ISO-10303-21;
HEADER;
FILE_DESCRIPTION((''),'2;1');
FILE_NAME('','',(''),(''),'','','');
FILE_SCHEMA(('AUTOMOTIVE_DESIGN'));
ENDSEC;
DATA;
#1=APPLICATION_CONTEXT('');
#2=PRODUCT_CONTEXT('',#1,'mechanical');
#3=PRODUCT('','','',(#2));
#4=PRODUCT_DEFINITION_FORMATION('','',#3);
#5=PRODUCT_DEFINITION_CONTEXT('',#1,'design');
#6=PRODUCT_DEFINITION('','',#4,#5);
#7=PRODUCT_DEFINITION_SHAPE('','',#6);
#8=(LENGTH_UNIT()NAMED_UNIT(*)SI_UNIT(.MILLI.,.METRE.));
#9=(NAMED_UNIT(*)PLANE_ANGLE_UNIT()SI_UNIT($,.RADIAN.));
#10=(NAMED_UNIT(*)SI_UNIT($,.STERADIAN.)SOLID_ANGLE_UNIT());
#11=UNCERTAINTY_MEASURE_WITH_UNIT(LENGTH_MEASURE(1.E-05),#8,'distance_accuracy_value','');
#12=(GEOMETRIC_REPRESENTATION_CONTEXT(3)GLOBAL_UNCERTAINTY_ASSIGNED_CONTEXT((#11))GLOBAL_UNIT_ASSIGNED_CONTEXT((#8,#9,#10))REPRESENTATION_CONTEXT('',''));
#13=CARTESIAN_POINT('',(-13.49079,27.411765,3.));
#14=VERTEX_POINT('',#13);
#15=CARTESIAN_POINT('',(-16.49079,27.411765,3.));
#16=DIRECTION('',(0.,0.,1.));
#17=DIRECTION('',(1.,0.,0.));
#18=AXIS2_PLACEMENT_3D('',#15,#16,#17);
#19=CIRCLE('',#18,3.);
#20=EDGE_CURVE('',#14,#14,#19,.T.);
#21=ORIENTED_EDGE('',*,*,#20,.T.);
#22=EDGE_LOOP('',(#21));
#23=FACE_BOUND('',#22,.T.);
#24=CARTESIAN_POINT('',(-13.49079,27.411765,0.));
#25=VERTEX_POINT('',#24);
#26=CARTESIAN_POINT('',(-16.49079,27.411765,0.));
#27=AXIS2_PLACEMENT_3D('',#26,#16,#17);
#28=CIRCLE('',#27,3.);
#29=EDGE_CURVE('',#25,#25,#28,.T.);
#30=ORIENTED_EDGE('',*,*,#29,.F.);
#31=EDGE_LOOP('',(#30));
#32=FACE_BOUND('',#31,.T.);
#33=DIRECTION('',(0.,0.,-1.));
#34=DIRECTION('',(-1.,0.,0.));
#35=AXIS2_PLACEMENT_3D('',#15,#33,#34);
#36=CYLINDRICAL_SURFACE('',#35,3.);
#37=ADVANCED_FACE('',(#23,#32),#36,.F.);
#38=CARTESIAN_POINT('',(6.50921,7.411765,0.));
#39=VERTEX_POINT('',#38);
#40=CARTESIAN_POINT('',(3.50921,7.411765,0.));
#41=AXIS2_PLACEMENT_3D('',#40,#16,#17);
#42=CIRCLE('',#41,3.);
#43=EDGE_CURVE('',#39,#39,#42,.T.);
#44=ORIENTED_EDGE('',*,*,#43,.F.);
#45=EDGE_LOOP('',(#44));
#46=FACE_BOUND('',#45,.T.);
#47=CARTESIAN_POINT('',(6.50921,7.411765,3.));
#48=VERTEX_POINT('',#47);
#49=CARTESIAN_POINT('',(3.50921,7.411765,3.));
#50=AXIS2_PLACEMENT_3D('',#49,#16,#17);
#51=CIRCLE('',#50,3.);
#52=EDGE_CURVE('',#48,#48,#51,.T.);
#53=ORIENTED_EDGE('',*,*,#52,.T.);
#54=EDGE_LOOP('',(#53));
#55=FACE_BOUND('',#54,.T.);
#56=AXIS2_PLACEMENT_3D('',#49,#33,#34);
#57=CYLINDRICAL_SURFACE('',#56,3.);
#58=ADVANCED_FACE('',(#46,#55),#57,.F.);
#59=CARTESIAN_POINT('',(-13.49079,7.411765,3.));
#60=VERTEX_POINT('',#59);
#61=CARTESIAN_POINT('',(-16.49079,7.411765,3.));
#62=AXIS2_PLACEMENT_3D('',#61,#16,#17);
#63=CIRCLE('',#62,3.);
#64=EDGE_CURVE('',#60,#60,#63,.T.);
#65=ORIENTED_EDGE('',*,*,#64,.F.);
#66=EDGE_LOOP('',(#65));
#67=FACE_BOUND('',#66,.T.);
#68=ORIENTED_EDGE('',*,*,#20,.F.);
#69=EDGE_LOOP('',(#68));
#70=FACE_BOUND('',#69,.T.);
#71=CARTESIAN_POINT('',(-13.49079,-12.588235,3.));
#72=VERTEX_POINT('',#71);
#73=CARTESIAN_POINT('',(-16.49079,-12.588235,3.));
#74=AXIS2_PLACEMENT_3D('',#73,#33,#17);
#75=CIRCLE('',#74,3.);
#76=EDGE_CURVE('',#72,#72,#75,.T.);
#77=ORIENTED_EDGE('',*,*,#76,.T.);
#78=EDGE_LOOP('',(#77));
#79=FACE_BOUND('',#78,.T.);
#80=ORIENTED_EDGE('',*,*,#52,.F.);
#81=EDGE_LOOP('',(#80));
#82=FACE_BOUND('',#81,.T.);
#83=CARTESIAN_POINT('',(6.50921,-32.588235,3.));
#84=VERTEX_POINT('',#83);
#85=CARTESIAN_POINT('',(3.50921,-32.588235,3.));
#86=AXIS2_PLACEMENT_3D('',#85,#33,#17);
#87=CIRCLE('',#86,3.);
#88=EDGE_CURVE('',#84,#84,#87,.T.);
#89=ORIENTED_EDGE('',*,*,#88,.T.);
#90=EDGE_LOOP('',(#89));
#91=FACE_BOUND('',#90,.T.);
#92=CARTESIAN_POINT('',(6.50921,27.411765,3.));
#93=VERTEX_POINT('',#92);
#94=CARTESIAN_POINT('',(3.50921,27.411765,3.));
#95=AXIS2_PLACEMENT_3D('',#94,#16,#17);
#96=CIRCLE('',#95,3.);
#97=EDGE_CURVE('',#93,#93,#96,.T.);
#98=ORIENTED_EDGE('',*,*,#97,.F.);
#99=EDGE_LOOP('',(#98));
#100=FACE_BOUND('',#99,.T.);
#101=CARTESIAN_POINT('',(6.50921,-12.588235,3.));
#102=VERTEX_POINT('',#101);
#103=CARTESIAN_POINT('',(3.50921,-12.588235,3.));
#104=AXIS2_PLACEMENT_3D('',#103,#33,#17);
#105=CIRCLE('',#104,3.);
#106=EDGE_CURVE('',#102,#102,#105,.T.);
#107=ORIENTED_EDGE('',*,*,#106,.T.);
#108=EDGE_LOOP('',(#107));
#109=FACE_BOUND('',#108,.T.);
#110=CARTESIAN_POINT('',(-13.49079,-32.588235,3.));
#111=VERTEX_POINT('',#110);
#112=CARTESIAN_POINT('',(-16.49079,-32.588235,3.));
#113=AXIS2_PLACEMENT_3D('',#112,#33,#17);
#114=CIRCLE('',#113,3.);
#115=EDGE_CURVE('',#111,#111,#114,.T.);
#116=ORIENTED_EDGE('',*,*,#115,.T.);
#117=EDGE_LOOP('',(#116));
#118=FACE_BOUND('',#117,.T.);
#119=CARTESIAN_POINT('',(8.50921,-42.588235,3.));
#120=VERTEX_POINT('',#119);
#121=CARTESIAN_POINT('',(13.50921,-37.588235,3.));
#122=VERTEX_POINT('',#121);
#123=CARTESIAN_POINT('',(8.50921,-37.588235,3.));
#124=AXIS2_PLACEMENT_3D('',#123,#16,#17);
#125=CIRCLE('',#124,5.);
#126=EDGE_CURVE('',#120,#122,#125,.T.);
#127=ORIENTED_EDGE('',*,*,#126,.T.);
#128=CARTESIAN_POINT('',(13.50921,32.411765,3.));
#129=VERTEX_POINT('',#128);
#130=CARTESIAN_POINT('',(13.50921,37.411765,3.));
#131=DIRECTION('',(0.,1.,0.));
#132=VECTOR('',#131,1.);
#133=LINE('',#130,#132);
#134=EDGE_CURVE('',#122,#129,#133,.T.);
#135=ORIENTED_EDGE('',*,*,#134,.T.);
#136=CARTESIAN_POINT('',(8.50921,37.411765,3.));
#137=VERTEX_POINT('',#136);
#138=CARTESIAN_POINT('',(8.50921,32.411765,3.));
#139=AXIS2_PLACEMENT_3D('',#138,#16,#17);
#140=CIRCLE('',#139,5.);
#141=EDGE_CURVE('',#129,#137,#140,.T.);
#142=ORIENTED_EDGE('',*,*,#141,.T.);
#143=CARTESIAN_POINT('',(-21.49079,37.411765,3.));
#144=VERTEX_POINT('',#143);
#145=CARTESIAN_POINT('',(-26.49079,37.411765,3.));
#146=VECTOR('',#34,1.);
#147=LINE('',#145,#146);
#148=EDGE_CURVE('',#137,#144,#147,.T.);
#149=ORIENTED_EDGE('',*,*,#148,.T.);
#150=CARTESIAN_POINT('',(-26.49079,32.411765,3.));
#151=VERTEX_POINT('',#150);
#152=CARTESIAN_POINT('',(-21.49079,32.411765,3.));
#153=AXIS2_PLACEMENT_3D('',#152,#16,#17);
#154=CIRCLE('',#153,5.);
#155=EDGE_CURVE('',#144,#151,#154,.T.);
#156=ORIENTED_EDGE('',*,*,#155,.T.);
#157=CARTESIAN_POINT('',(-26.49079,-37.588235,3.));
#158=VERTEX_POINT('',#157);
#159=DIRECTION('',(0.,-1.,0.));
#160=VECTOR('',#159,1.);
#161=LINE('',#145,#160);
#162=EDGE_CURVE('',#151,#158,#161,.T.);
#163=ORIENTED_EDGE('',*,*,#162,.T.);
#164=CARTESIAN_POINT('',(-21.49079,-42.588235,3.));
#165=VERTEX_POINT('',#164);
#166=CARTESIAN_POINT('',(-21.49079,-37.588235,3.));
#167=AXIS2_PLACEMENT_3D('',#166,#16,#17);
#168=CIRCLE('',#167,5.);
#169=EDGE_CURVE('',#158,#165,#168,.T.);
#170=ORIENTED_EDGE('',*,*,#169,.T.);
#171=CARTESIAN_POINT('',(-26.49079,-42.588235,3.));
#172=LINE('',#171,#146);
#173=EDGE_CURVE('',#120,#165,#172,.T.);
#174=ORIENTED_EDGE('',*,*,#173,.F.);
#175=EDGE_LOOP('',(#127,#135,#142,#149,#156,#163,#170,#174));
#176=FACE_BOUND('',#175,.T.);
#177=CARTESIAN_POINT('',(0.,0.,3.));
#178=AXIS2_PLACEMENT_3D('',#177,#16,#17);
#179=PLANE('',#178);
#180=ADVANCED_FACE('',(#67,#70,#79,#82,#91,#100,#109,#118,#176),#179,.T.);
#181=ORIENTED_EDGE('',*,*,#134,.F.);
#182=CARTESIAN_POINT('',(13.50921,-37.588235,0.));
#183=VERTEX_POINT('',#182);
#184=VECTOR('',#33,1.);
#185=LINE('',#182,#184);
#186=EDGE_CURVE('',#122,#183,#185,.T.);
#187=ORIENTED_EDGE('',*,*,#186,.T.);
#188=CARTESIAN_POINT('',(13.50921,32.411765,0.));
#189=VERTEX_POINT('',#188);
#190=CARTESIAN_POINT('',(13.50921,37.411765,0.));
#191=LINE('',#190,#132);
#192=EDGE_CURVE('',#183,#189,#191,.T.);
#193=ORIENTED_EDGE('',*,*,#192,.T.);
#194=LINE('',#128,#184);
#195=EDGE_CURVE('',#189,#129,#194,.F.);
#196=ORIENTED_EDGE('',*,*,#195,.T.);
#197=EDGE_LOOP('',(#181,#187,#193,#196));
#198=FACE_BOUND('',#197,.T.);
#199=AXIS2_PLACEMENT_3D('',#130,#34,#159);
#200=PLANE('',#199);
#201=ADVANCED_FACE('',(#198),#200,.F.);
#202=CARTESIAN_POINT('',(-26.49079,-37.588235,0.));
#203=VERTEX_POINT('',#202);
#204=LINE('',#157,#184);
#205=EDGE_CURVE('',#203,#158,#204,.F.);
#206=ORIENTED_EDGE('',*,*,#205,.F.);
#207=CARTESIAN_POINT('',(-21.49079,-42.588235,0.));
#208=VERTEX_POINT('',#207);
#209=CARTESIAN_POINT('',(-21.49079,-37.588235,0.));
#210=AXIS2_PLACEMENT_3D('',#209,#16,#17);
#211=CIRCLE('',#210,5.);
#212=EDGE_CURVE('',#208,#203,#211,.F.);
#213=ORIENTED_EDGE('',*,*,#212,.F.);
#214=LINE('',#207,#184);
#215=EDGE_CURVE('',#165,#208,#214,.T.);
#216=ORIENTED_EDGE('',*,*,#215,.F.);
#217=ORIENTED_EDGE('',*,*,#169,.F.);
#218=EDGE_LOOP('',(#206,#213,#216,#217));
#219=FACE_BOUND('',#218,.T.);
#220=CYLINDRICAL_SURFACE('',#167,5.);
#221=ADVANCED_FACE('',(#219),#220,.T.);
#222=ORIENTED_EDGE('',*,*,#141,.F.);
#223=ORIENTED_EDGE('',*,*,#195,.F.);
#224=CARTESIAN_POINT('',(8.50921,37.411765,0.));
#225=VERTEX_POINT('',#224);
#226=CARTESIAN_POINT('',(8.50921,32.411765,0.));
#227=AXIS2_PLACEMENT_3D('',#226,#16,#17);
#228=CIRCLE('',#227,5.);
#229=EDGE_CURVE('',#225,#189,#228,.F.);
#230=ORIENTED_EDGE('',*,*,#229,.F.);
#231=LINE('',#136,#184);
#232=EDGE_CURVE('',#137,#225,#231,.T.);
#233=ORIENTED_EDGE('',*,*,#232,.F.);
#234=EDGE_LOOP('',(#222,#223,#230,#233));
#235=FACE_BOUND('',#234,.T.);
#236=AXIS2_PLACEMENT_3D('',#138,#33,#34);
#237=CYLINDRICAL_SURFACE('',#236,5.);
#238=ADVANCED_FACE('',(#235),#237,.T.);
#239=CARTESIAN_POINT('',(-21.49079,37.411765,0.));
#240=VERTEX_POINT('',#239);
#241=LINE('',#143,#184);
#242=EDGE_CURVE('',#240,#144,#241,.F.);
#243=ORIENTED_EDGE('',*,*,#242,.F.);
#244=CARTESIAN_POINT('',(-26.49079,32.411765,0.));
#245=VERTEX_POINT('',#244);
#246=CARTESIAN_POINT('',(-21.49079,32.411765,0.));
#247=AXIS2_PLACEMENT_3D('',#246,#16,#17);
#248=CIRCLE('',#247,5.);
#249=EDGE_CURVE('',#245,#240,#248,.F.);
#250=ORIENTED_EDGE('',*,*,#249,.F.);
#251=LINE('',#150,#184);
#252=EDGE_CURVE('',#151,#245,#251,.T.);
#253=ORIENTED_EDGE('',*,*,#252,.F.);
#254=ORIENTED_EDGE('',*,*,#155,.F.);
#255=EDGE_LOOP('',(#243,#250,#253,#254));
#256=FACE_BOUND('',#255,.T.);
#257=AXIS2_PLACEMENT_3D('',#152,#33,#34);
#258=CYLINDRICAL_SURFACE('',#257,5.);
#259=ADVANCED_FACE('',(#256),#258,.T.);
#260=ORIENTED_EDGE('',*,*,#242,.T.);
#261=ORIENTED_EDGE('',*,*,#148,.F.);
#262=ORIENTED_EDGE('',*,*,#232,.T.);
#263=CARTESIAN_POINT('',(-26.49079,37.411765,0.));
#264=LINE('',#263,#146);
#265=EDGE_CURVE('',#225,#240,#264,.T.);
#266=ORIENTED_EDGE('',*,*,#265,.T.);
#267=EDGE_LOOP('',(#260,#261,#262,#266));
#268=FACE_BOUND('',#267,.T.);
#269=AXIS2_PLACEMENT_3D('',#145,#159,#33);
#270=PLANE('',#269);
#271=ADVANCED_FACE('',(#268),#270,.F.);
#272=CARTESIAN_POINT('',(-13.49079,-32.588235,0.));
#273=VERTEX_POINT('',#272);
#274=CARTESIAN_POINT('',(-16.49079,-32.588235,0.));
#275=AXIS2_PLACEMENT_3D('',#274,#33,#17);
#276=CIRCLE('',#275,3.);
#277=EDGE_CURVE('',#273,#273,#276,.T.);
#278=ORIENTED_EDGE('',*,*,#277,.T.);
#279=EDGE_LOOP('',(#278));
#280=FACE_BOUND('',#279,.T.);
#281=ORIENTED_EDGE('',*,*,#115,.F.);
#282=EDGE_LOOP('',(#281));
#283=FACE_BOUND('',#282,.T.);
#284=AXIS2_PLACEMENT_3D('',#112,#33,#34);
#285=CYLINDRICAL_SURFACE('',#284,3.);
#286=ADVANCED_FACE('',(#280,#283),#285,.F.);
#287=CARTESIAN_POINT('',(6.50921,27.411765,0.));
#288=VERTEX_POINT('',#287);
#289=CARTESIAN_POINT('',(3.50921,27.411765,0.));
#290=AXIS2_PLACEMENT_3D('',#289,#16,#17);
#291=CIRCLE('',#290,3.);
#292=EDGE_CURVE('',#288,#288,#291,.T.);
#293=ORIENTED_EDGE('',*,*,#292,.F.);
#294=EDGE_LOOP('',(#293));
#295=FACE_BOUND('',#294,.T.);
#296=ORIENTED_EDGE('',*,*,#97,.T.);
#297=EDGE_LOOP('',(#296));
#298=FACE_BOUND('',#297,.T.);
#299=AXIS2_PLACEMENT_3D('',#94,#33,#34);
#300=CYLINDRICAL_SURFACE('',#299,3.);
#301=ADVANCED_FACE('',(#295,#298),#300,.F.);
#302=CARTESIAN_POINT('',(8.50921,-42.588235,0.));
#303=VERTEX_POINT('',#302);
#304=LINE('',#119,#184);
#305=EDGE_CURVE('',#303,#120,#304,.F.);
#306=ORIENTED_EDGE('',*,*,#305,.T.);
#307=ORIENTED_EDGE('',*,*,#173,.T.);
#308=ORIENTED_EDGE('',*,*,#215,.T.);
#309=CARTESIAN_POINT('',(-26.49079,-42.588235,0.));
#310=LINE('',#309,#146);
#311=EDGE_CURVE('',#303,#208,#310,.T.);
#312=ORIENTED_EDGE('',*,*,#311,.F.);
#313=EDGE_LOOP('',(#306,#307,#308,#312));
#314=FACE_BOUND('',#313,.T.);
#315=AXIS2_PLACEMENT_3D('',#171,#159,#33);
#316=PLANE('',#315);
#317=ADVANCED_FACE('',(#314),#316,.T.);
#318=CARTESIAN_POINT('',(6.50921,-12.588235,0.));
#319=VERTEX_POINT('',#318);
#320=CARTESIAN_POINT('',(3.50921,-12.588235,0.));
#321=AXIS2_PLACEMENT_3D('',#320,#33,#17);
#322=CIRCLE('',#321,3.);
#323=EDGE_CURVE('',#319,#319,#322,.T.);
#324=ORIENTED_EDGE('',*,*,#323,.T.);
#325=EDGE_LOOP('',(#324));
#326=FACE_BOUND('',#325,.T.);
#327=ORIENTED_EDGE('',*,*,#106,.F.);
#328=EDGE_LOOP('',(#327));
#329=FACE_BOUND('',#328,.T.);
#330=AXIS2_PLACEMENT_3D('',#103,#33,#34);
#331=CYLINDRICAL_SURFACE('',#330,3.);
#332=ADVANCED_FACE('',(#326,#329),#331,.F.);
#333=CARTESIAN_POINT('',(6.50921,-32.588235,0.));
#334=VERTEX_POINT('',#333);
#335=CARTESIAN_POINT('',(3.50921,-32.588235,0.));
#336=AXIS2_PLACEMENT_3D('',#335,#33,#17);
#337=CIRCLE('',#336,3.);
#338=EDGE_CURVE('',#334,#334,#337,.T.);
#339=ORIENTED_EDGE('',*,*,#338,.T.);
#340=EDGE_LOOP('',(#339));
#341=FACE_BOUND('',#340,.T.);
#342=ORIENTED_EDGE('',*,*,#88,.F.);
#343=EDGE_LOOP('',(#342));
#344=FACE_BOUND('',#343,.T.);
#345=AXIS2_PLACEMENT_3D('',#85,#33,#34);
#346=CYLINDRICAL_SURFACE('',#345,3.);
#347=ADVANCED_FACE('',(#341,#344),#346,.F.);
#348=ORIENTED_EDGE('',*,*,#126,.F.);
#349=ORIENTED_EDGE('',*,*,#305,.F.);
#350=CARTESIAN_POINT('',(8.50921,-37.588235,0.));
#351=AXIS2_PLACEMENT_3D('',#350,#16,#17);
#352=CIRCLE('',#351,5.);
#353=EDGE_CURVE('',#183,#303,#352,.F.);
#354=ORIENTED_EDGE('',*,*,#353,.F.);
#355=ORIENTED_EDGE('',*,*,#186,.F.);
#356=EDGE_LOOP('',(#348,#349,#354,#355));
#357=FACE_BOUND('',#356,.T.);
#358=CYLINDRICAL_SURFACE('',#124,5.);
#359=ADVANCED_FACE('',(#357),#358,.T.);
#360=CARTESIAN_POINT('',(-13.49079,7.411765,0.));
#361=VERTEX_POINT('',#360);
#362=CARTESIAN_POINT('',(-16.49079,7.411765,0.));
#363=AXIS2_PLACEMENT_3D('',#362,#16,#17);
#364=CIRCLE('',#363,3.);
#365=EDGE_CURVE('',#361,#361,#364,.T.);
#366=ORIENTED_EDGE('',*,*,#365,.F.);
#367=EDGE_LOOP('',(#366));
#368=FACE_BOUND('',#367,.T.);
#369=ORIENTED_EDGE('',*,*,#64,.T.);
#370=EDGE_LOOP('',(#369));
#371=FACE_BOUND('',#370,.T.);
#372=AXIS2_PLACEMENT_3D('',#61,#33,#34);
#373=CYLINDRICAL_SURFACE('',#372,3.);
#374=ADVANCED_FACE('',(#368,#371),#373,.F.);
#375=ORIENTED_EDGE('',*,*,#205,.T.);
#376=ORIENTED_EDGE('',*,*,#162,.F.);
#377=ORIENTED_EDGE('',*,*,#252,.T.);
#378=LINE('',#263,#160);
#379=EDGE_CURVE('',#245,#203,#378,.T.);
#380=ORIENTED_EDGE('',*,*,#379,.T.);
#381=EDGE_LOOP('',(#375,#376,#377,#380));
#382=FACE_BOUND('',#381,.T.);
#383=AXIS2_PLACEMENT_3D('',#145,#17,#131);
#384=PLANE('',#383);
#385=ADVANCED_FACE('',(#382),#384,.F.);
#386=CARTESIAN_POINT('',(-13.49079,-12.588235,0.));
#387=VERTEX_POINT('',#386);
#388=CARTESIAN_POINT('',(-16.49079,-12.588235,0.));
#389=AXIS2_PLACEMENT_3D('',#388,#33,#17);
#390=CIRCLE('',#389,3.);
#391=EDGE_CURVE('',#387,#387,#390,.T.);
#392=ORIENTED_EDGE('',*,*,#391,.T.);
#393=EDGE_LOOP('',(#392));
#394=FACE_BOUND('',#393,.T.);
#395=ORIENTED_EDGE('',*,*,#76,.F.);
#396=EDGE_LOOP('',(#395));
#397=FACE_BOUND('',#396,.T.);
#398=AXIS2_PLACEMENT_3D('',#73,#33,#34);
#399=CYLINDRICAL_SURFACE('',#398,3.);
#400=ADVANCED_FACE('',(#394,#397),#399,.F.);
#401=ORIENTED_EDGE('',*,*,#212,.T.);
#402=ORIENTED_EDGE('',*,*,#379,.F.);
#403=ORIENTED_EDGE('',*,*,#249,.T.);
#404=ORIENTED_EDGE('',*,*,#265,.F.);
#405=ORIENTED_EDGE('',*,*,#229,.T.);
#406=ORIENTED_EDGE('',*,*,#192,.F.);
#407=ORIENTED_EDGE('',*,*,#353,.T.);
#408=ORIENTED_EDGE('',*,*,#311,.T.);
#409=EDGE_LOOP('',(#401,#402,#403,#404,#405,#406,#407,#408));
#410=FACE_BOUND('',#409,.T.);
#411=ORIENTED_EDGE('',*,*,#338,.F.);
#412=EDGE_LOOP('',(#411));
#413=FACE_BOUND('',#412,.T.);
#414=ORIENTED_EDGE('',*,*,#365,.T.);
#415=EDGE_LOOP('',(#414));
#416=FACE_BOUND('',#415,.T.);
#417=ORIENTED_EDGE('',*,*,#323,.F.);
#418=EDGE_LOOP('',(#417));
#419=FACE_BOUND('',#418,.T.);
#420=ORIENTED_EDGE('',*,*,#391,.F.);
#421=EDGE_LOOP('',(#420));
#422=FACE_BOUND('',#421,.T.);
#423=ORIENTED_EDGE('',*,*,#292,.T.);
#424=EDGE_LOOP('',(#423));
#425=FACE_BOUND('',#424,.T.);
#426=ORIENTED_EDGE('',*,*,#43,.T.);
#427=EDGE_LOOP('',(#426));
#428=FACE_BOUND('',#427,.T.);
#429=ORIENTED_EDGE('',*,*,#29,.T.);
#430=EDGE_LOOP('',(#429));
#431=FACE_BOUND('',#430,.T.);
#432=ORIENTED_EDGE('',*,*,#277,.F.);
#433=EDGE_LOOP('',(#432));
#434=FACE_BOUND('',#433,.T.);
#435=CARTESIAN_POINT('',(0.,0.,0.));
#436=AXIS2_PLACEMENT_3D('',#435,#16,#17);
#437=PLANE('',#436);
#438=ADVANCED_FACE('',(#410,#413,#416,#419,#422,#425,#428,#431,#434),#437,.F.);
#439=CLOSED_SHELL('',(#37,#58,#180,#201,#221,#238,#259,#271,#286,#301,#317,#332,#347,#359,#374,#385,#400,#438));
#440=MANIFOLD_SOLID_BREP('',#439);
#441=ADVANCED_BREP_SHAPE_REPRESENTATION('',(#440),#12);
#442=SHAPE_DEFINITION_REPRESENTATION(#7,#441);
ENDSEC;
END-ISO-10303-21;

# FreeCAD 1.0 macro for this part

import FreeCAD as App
import Part
import Sketcher
Q = App.Units.Quantity


def edges_at(feature, points):
    """Names of the edges that pass closest to the given points."""
    edges = feature.Shape.Edges
    near = lambda p: min(range(len(edges)), key=lambda i: edges[i].distToShape(Part.Vertex(*p))[0])
    return sorted({f"Edge{near(p) + 1}" for p in points})


def add_polygon(sketch, points):
    """Adds a closed chain of lines whose ends are joined by coincident constraints."""
    first, n = sketch.GeometryCount, len(points)
    for a, b in zip(points, points[1:] + points[:1]):
        sketch.addGeometry(Part.LineSegment(App.Vector(*a, 0), App.Vector(*b, 0)), False)
    for i in range(n):
        sketch.addConstraint(Sketcher.Constraint("Coincident", first + i, 2, first + (i + 1) % n, 1))

doc = App.newDocument("Part")
params = doc.addObject("Spreadsheet::Sheet", "Params")
for row, (alias, value) in enumerate([
    ("sketch1_diameter", "6 mm"),
    ("sketch1_width", "40 mm"),
    ("pad1_length", "3 mm"),
    ("fillet_radius", "5 mm"),
], start=1):
    params.set(f"A{row}", alias)
    params.set(f"B{row}", "=" + value)
    params.setAlias(f"B{row}", alias)

body = doc.addObject("PartDesign::Body", "Body")

sketch1 = doc.addObject("Sketcher::SketchObject", "Sketch")
body.addObject(sketch1)
sketch1.AttachmentSupport = (doc.XY_Plane, [""])
sketch1.MapMode = "FlatFace"
add_polygon(sketch1, [(-26.5, 37.4), (-26.5, -2.6), (13.5, -2.6), (13.5, 37.4)])
sketch1.addGeometry(Part.Circle(App.Vector(-16.5, 7.4, 0), App.Vector(0, 0, 1), 3), False)
sketch1.addGeometry(Part.Circle(App.Vector(3.5, 7.4, 0), App.Vector(0, 0, 1), 3), False)
sketch1.addGeometry(Part.Circle(App.Vector(-16.5, 27.4, 0), App.Vector(0, 0, 1), 3), False)
sketch1.addGeometry(Part.Circle(App.Vector(3.5, 27.4, 0), App.Vector(0, 0, 1), 3), False)
sketch1.addConstraint(Sketcher.Constraint("Vertical", 0))
sketch1.addConstraint(Sketcher.Constraint("Horizontal", 1))
sketch1.addConstraint(Sketcher.Constraint("Vertical", 2))
sketch1.addConstraint(Sketcher.Constraint("Horizontal", 3))
sketch1.addConstraint(Sketcher.Constraint("Equal", 4, 5))
sketch1.addConstraint(Sketcher.Constraint("Equal", 5, 6))
sketch1.addConstraint(Sketcher.Constraint("Equal", 6, 7))
sketch1.addConstraint(Sketcher.Constraint("Horizontal", 4, 3, 5, 3))
sketch1.addConstraint(Sketcher.Constraint("Horizontal", 6, 3, 7, 3))
sketch1.addConstraint(Sketcher.Constraint("Vertical", 4, 3, 6, 3))
sketch1.addConstraint(Sketcher.Constraint("Vertical", 5, 3, 7, 3))
sketch1.addConstraint(Sketcher.Constraint("Equal", 3, 0))
sketch1.addConstraint(Sketcher.Constraint("Diameter", 4, Q("6 mm")))
sketch1.addConstraint(Sketcher.Constraint("DistanceX", 1, 1, 1, 2, Q("40 mm")))
sketch1.addConstraint(Sketcher.Constraint("DistanceX", 4, 3, 5, 3, Q("20 mm")))
sketch1.addConstraint(Sketcher.Constraint("DistanceY", 4, 3, 6, 3, Q("20 mm")))
sketch1.addConstraint(Sketcher.Constraint("DistanceX", 0, 2, 4, 3, Q("10 mm")))
sketch1.addConstraint(Sketcher.Constraint("DistanceY", 0, 2, 4, 3, Q("10 mm")))
sketch1.addConstraint(Sketcher.Constraint("DistanceX", 4, 3, -1, 1, Q("16.49079 mm")))
sketch1.addConstraint(Sketcher.Constraint("DistanceY", -1, 1, 4, 3, Q("7.411765 mm")))
sketch1.setExpression("Constraints[16]", "Params.sketch1_diameter")
sketch1.setExpression("Constraints[17]", "Params.sketch1_width")
pad1 = doc.addObject("PartDesign::Pad", "Pad")
body.addObject(pad1)
pad1.Profile = sketch1
pad1.setExpression("Length", "Params.pad1_length")
doc.recompute()

datumplane = doc.addObject("PartDesign::Plane", "DatumPlane")
body.addObject(datumplane)
datumplane.AttachmentSupport = (doc.XZ_Plane, [""])
datumplane.MapMode = "FlatFace"
datumplane.AttachmentOffset = App.Placement(App.Vector(0, 0, 2.588235), App.Rotation())
mirrored = doc.addObject("PartDesign::Mirrored", "Mirrored")
body.addObject(mirrored)
mirrored.Originals = [pad1]
mirrored.MirrorPlane = (datumplane, [""])
body.Tip = mirrored
doc.recompute()

fillet = doc.addObject("PartDesign::Fillet", "Fillet")
body.addObject(fillet)
fillet.Base = (mirrored, edges_at(mirrored, [
    (-26.491, -42.588, 1.5),
    (13.509, -42.588, 1.5),
    (-26.491, 37.412, 1.5),
    (13.509, 37.412, 1.5),
]))
fillet.setExpression("Radius", "Params.fillet_radius")

doc.recompute()
